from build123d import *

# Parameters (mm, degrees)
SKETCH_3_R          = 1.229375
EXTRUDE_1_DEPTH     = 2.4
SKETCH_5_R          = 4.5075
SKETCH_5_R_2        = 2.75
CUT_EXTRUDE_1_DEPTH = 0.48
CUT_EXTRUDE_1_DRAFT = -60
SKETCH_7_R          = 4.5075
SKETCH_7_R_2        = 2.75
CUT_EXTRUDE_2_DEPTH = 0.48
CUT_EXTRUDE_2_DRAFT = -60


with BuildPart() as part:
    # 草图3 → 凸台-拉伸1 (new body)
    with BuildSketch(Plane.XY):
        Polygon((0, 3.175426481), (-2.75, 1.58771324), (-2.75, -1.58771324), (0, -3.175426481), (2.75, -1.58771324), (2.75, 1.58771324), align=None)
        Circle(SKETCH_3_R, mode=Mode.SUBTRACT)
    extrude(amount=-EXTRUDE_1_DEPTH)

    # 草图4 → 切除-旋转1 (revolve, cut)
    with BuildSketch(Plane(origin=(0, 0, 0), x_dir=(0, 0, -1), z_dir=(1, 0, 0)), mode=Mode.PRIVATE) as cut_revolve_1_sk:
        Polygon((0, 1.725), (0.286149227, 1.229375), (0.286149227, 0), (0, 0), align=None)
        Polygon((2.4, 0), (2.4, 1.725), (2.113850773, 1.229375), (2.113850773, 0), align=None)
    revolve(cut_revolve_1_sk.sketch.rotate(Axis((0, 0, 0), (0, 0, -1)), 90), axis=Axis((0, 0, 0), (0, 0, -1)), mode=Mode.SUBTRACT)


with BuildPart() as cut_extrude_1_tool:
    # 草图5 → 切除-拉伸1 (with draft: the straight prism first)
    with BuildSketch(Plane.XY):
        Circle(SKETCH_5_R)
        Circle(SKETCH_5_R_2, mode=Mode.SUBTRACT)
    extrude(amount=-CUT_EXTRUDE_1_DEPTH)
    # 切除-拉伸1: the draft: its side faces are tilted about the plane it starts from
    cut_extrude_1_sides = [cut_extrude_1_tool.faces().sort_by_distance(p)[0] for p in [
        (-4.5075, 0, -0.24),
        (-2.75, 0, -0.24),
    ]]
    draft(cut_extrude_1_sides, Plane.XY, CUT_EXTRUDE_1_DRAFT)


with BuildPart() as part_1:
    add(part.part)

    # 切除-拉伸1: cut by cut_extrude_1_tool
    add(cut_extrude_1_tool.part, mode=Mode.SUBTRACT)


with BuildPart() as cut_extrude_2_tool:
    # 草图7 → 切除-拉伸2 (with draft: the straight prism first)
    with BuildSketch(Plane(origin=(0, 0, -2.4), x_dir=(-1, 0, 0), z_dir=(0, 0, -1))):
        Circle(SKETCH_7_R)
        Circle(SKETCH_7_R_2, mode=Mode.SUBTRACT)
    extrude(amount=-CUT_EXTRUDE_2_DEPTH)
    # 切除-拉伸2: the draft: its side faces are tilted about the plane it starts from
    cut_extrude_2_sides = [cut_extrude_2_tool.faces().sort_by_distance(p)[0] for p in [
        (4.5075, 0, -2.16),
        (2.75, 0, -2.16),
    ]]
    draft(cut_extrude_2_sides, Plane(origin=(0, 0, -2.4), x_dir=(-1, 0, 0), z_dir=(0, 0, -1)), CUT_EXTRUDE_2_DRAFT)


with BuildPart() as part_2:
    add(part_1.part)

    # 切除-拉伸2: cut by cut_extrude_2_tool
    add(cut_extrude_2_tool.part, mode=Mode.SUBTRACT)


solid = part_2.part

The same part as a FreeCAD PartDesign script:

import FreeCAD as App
import Part
import Sketcher
from FreeCAD import Vector
Q = App.Units.Quantity


def faces_at(feature, points):
    """Names of the faces that lie closest to the given points."""
    faces = feature.Shape.Faces
    near = lambda p: min(range(len(faces)), key=lambda i: faces[i].distToShape(Part.Vertex(*p))[0])
    return sorted({f"Face{near(p) + 1}" for p in points})


def add_polygon(sketch, points):
    """Adds a closed chain of lines whose ends are joined by coincident constraints."""
    first, n = sketch.GeometryCount, len(points)
    for a, b in zip(points, points[1:] + points[:1]):
        sketch.addGeometry(Part.LineSegment(App.Vector(*a, 0), App.Vector(*b, 0)), False)
    for i in range(n):
        sketch.addConstraint(Sketcher.Constraint("Coincident", first + i, 2, first + (i + 1) % n, 1))

doc = App.newDocument("Part")
body = doc.addObject("PartDesign::Body", "Body")

# Sketch on XY plane
sketch1 = doc.addObject("Sketcher::SketchObject", "Sketch")
body.addObject(sketch1)
sketch1.AttachmentSupport = (doc.XY_Plane, [""])
sketch1.MapMode = "FlatFace"
add_polygon(sketch1, [(0, 3.2), (-2.8, 1.6), (-2.8, -1.6), (0, -3.2), (2.8, -1.6), (2.8, 1.6)])  # lines 0-5
sketch1.addGeometry(Part.Circle(Vector(0, 0, 0), Vector(0, 0, 1), 1.2), False)  # 6
sketch1.addConstraint([
    Sketcher.Constraint("Vertical", 1),
    Sketcher.Constraint("Vertical", 4),
    Sketcher.Constraint("Coincident", 6, 3, -1, 1),
    Sketcher.Constraint("Symmetric", 0, 2, 3, 2, -1, 1),
    Sketcher.Constraint("Symmetric", 2, 2, 5, 2, -1, 1),
    Sketcher.Constraint("PointOnObject", 2, 2, -2),
    Sketcher.Constraint("Parallel", 2, 5),
    Sketcher.Constraint("Horizontal", 1, 2, 3, 2),
    Sketcher.Constraint("Angle", 0, Q("-150 deg")),
    Sketcher.Constraint("DistanceX", 1, 2, 3, 2, Q("5.5 mm")),
    Sketcher.Constraint("Diameter", 6, Q("2.45875 mm")),
    Sketcher.Constraint("DistanceY", 1, 2, 1, 1, Q("3.175426 mm")),
])
pad1 = doc.addObject("PartDesign::Pad", "Pad")
body.addObject(pad1)
pad1.Profile = sketch1
pad1.Length = 2.4
pad1.Reversed = True

# Sketch on YZ plane
sketch2 = doc.addObject("Sketcher::SketchObject", "Sketch001")
body.addObject(sketch2)
sketch2.AttachmentSupport = (doc.YZ_Plane, [""])
sketch2.MapMode = "FlatFace"
add_polygon(sketch2, [(1.23, -0.29), (1.73, 0), (0, 0), (0, -0.29)])  # lines 0-3
add_polygon(sketch2, [(0, -2.4), (1.73, -2.4), (1.23, -2.11), (0, -2.11)])  # lines 4-7
sketch2.addConstraint([
    Sketcher.Constraint("Horizontal", 1),
    Sketcher.Constraint("Vertical", 2),
    Sketcher.Constraint("Horizontal", 3),
    Sketcher.Constraint("Horizontal", 4),
    Sketcher.Constraint("Horizontal", 6),
    Sketcher.Constraint("Vertical", 7),
    Sketcher.Constraint("Coincident", 1, 2, -1, 1),
    Sketcher.Constraint("PointOnObject", 6, 2, -2),
    Sketcher.Constraint("Vertical", 0, 2, 4, 2),
    Sketcher.Constraint("Vertical", 3, 2, 5, 2),
    Sketcher.Constraint("Equal", 2, 7),
    Sketcher.Constraint("Angle", 0, Q("30 deg")),
    Sketcher.Constraint("DistanceY", 4, 2, -1, 1, Q("2.4 mm")),
    Sketcher.Constraint("DistanceX", 1, 2, 1, 1, Q("1.725 mm")),
    Sketcher.Constraint("Distance", 0, Q("0.572298 mm")),
])
groove = doc.addObject("PartDesign::Groove", "Groove")
body.addObject(groove)
groove.Profile = sketch2
groove.ReferenceAxis = (sketch2, ["V_Axis"])
groove.Angle = 360
body2 = doc.addObject("PartDesign::Body", "Body001")

# Sketch on XY plane
sketch3 = doc.addObject("Sketcher::SketchObject", "Sketch002")
body2.addObject(sketch3)
sketch3.AttachmentSupport = (doc.getObject("XY_Plane001"), [""])
sketch3.MapMode = "FlatFace"
sketch3.addGeometry([
    Part.Circle(Vector(0, 0, 0), Vector(0, 0, 1), 4.5),
    Part.Circle(Vector(0, 0, 0), Vector(0, 0, 1), 2.8),
], False)
sketch3.addConstraint([
    Sketcher.Constraint("Coincident", 0, 3, -1, 1),
    Sketcher.Constraint("Coincident", 1, 3, -1, 1),
    Sketcher.Constraint("Diameter", 1, Q("5.5 mm")),
    Sketcher.Constraint("Diameter", 0, Q("9.015 mm")),
])
pad2 = doc.addObject("PartDesign::Pad", "Pad001")
body2.addObject(pad2)
pad2.Profile = sketch3
pad2.Length = 0.48
pad2.Reversed = True
doc.recompute()

draft = doc.addObject("PartDesign::Draft", "Draft")
body2.addObject(draft)
draft.Base = (pad2, faces_at(pad2, [(-4.508, 0, -0.24), (-2.75, 0, -0.24)]))
draft.NeutralPlane = (doc.getObject("XY_Plane001"), [""])
draft.Angle = 60
draft.Reversed = True
doc.recompute()

boolean = doc.addObject("PartDesign::Boolean", "Boolean")
body.addObject(boolean)
boolean.Type = "Cut"
boolean.addObjects([body2])
body3 = doc.addObject("PartDesign::Body", "Body002")

# Sketch on XY plane
sketch4 = doc.addObject("Sketcher::SketchObject", "Sketch003")
body3.addObject(sketch4)
sketch4.AttachmentSupport = (doc.getObject("XY_Plane002"), [""])
sketch4.MapMode = "FlatFace"
sketch4.AttachmentOffset = App.Placement(Vector(0, 0, -2.4), App.Rotation())
sketch4.addGeometry([
    Part.Circle(Vector(0, 0, 0), Vector(0, 0, 1), 4.5),
    Part.Circle(Vector(0, 0, 0), Vector(0, 0, 1), 2.8),
], False)
sketch4.addConstraint([
    Sketcher.Constraint("Coincident", 0, 3, -1, 1),
    Sketcher.Constraint("Coincident", 1, 3, -1, 1),
    Sketcher.Constraint("Diameter", 1, Q("5.5 mm")),
    Sketcher.Constraint("Diameter", 0, Q("9.015 mm")),
])
pad3 = doc.addObject("PartDesign::Pad", "Pad002")
body3.addObject(pad3)
pad3.Profile = sketch4
pad3.Length = 0.48
doc.recompute()

datumplane = doc.addObject("PartDesign::Plane", "DatumPlane")
body3.addObject(datumplane)
datumplane.AttachmentSupport = (doc.getObject("XY_Plane002"), [""])
datumplane.MapMode = "FlatFace"
datumplane.AttachmentOffset = App.Placement(Vector(0, 0, -2.4), App.Rotation())
draft2 = doc.addObject("PartDesign::Draft", "Draft001")
body3.addObject(draft2)
draft2.Base = (pad3, faces_at(pad3, [(4.508, 0, -2.16), (2.75, 0, -2.16)]))
draft2.NeutralPlane = (datumplane, [""])
draft2.Angle = 60
draft2.Reversed = False
doc.recompute()

boolean2 = doc.addObject("PartDesign::Boolean", "Boolean001")
body.addObject(boolean2)
boolean2.Type = "Cut"
boolean2.addObjects([body3])

doc.recompute()
